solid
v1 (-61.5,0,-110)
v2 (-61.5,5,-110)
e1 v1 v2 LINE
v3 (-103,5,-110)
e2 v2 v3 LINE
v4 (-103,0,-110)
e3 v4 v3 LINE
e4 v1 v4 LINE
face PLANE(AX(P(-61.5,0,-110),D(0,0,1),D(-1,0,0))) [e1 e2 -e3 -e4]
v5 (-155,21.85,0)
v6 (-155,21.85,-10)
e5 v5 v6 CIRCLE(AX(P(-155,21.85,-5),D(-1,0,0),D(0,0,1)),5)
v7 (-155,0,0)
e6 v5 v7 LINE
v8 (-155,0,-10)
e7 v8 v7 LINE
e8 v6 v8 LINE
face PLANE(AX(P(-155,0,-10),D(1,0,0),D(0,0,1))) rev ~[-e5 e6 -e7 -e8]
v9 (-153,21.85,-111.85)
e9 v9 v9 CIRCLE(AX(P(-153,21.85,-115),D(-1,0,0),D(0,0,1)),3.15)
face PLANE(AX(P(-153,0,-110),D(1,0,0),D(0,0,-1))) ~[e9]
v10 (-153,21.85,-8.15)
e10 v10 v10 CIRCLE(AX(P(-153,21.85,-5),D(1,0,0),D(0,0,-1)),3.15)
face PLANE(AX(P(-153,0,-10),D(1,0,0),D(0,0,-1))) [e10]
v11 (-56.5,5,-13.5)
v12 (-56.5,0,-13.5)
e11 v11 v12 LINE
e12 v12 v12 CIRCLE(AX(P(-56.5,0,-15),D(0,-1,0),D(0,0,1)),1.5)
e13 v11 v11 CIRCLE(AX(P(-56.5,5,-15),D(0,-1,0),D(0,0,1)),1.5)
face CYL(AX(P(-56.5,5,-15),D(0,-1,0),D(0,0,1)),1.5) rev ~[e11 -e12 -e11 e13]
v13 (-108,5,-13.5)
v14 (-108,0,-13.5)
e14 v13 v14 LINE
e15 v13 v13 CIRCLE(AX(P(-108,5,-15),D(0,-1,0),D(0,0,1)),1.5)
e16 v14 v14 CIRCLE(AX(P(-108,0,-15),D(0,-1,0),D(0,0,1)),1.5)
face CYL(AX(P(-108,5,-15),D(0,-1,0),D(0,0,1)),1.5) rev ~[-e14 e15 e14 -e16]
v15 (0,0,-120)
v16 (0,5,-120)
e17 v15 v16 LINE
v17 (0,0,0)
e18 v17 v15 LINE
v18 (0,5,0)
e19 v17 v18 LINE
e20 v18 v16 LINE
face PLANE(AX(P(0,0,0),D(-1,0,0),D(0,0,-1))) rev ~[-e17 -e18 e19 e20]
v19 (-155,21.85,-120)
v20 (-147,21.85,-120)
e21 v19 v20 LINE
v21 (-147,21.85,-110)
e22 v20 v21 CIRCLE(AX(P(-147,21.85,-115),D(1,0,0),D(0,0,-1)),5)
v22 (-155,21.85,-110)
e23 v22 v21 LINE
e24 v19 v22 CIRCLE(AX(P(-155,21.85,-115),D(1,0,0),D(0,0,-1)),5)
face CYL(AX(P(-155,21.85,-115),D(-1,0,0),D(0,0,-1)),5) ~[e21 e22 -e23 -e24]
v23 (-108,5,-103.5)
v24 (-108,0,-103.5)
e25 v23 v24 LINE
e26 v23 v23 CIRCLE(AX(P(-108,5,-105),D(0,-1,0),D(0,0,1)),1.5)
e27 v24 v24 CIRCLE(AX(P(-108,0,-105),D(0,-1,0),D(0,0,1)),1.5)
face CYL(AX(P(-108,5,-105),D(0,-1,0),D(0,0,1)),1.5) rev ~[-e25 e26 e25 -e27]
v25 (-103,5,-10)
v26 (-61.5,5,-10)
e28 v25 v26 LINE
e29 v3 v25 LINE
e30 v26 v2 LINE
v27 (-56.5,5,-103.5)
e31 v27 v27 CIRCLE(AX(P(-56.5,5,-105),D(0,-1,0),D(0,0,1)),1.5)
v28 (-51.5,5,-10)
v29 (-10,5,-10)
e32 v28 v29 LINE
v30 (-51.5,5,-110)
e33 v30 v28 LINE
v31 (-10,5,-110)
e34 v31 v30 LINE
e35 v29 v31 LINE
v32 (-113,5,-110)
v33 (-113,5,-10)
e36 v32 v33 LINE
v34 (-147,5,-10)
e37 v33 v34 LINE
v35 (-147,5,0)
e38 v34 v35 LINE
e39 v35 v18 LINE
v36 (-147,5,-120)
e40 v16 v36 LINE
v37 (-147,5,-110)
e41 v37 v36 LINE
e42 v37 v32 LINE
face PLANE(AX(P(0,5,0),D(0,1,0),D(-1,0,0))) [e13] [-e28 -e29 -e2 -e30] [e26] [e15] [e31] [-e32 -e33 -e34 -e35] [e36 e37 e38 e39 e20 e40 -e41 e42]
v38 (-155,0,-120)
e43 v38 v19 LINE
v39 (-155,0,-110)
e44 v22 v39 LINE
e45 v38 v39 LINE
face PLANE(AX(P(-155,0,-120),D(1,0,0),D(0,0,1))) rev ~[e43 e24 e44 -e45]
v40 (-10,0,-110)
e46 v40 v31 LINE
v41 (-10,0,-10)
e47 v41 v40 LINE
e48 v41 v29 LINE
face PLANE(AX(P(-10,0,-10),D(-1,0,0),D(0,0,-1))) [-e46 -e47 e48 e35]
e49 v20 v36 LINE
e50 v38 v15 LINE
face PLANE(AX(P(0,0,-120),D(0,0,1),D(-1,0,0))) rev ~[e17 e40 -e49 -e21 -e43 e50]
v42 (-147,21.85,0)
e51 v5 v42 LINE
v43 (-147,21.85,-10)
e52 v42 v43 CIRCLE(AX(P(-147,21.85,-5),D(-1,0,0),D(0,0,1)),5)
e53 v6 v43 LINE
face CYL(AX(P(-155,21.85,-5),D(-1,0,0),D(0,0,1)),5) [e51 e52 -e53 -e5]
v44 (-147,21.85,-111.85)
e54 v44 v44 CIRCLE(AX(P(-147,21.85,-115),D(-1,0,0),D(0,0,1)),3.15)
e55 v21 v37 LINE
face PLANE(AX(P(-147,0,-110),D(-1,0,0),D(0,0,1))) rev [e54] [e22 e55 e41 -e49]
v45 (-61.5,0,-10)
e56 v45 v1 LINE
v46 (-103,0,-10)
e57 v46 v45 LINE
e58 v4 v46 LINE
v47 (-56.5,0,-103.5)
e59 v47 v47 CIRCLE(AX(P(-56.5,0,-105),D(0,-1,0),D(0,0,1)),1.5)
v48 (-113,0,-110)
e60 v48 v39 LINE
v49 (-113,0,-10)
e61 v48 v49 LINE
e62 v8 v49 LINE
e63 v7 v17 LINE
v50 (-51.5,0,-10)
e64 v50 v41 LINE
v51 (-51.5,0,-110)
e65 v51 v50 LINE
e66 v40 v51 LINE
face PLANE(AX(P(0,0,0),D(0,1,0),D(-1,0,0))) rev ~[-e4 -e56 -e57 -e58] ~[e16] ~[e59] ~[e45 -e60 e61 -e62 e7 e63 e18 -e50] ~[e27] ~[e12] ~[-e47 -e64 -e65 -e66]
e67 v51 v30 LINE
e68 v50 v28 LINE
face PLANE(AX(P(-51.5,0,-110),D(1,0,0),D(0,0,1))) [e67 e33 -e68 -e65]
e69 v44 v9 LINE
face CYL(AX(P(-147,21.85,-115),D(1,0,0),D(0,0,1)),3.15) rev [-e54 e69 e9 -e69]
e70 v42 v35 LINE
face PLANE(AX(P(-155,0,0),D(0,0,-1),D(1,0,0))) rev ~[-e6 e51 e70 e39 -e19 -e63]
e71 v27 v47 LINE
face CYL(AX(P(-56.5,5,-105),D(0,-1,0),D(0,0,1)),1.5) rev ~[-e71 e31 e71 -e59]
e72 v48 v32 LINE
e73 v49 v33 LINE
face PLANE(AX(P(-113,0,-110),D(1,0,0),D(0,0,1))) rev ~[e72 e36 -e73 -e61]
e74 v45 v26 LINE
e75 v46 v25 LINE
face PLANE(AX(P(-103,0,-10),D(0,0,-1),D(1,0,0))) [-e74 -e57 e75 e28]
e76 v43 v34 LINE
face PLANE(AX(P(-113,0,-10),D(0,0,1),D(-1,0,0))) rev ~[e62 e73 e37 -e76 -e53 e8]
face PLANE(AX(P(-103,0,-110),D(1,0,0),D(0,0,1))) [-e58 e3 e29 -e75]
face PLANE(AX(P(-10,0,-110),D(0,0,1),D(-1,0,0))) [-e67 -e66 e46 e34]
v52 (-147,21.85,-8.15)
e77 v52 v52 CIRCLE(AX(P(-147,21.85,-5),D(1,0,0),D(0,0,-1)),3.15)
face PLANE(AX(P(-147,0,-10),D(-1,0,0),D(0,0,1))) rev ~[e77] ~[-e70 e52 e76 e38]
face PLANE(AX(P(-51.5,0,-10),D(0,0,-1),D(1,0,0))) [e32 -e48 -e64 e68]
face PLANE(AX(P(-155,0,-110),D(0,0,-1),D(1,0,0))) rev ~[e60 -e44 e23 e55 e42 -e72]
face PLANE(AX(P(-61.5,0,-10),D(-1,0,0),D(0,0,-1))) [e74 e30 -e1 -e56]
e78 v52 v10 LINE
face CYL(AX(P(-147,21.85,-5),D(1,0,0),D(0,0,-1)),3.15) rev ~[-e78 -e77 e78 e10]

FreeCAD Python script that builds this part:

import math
import FreeCAD as App
import Part
import Sketcher

V = App.Vector


def add_polygon(sketch, points):
    """Adds a closed chain of lines whose ends are joined by coincident constraints."""
    first, n = sketch.GeometryCount, len(points)
    for a, b in zip(points, points[1:] + points[:1]):
        sketch.addGeometry(Part.LineSegment(App.Vector(*a, 0), App.Vector(*b, 0)), False)
    for i in range(n):
        sketch.addConstraint(Sketcher.Constraint("Coincident", first + i, 2, first + (i + 1) % n, 1))

doc = App.newDocument("Part")
body = doc.addObject("PartDesign::Body", "Body")

# Sketch on XZ plane
sketch1 = body.newObject("Sketcher::SketchObject", "Sketch")
sketch1.AttachmentSupport = (doc.getObject("XZ_Plane"), [""])
sketch1.MapMode = "FlatFace"
add_polygon(sketch1, [(-155, 0), (0, 0), (0, -120), (-155, -120), (-155, -110), (-113, -110), (-113, -10), (-155, -10)])  # lines 0-7
add_polygon(sketch1, [(-10, -10), (-52, -10), (-52, -110), (-10, -110)])  # lines 8-11
add_polygon(sketch1, [(-62, -10), (-103, -10), (-103, -110), (-62, -110)])  # lines 12-15
sketch1.addConstraint([
    Sketcher.Constraint("Horizontal", 0),
    Sketcher.Constraint("Vertical", 1),
    Sketcher.Constraint("Horizontal", 2),
    Sketcher.Constraint("Vertical", 3),
    Sketcher.Constraint("Horizontal", 4),
    Sketcher.Constraint("Vertical", 5),
    Sketcher.Constraint("Horizontal", 6),
    Sketcher.Constraint("Vertical", 7),
    Sketcher.Constraint("Horizontal", 8),
    Sketcher.Constraint("Vertical", 9),
    Sketcher.Constraint("Horizontal", 10),
    Sketcher.Constraint("Vertical", 11),
    Sketcher.Constraint("Horizontal", 12),
    Sketcher.Constraint("Vertical", 13),
    Sketcher.Constraint("Horizontal", 14),
    Sketcher.Constraint("Vertical", 15),
    Sketcher.Constraint("Coincident", 0, 2, -1, 1),
    Sketcher.Constraint("Horizontal", 6, 2, 8, 2),
    Sketcher.Constraint("Horizontal", 4, 2, 9, 2),
    Sketcher.Constraint("Horizontal", 11, 2, 12, 2),
    Sketcher.Constraint("Horizontal", 10, 2, 13, 2),
    Sketcher.Constraint("Vertical", 3, 2, 6, 2),
    Sketcher.Constraint("Equal", 10, 12),
    Sketcher.Constraint("Equal", 3, 7),
    Sketcher.Constraint("DistanceX", 0, 1, 0, 2, 155.0),
    Sketcher.Constraint("DistanceY", 1, 2, 1, 1, 120.0),
    Sketcher.Constraint("DistanceY", 3, 1, 3, 2, 10.0),
    Sketcher.Constraint("DistanceX", 8, 2, 8, 1, 41.5),
    Sketcher.Constraint("DistanceX", 10, 2, -1, 1, 10.0),
    Sketcher.Constraint("DistanceX", 5, 2, 12, 2, 10.0),
    Sketcher.Constraint("DistanceX", 14, 2, 9, 2, 10.0),
])
pad1 = body.newObject("PartDesign::Pad", "Pad")
pad1.Profile = sketch1
pad1.Length = 5
pad1.Reversed = True

# Sketch on YZ plane
sketch2 = body.newObject("Sketcher::SketchObject", "Sketch001")
sketch2.AttachmentSupport = (doc.getObject("YZ_Plane"), [""])
sketch2.MapMode = "FlatFace"
sketch2.AttachmentOffset = App.Placement(V(0, 0, -155), App.Rotation())
sketch2.addGeometry([
    Part.LineSegment(V(0, -10, 0), V(0, 0, 0)),
    Part.LineSegment(V(0, 0, 0), V(22, 0, 0)),
    Part.ArcOfCircle(Part.Circle(V(22, -5, 0), V(0, 0, 1), 5), math.radians(-90), math.radians(90)),
    Part.LineSegment(V(22, -10, 0), V(0, -10, 0)),
], False)
sketch2.addConstraint([
    Sketcher.Constraint("Coincident", 0, 2, 1, 1),
    Sketcher.Constraint("Tangent", 1, 2, 2, 2),
    Sketcher.Constraint("Tangent", 2, 1, 3, 1),
    Sketcher.Constraint("Coincident", 3, 2, 0, 1),
    Sketcher.Constraint("Vertical", 0),
    Sketcher.Constraint("Horizontal", 1),
    Sketcher.Constraint("Horizontal", 3),
    Sketcher.Constraint("Coincident", 0, 2, -1, 1),
    Sketcher.Constraint("Radius", 2, 5.0),
    Sketcher.Constraint("DistanceX", 1, 1, 1, 2, 21.85),
])
pad2 = body.newObject("PartDesign::Pad", "Pad001")
pad2.Profile = sketch2
pad2.Length = 8

# Sketch on YZ plane
sketch3 = body.newObject("Sketcher::SketchObject", "Sketch002")
sketch3.AttachmentSupport = (doc.getObject("YZ_Plane"), [""])
sketch3.MapMode = "FlatFace"
sketch3.AttachmentOffset = App.Placement(V(0, 0, -147), App.Rotation())
sketch3.addGeometry(Part.Circle(V(21.9, -5, 0), V(0, 0, 1), 3.1), False)
sketch3.addConstraint([
    Sketcher.Constraint("Diameter", 0, 6.3),
    Sketcher.Constraint("DistanceY", 0, 3, -1, 1, 5.0),
    Sketcher.Constraint("DistanceX", -1, 1, 0, 3, 21.85),
])
pocket1 = body.newObject("PartDesign::Pocket", "Pocket")
pocket1.Profile = sketch3
pocket1.Length = 6
doc.recompute()

datumplane = body.newObject("PartDesign::Plane", "DatumPlane")
datumplane.AttachmentSupport = (doc.getObject("XY_Plane"), [""])
datumplane.MapMode = "FlatFace"
datumplane.AttachmentOffset = App.Placement(V(0, 0, -60), App.Rotation())
mirrored = body.newObject("PartDesign::Mirrored", "Mirrored")
mirrored.Originals = [pad2, pocket1]
mirrored.MirrorPlane = (datumplane, [""])
body.Tip = mirrored

# Sketch on XZ plane
sketch4 = body.newObject("Sketcher::SketchObject", "Sketch003")
sketch4.AttachmentSupport = (doc.getObject("XZ_Plane"), [""])
sketch4.MapMode = "FlatFace"
sketch4.AttachmentOffset = App.Placement(V(0, 0, -5), App.Rotation())
sketch4.addGeometry([
    Part.Circle(V(-108, -15, 0), V(0, 0, 1), 1.5),
    Part.Circle(V(-56.5, -15, 0), V(0, 0, 1), 1.5),
    Part.Circle(V(-108, -105, 0), V(0, 0, 1), 1.5),
    Part.Circle(V(-56.5, -105, 0), V(0, 0, 1), 1.5),
], False)
sketch4.addConstraint([
    Sketcher.Constraint("Equal", 0, 1),
    Sketcher.Constraint("Equal", 1, 2),
    Sketcher.Constraint("Equal", 2, 3),
    Sketcher.Constraint("Horizontal", 0, 3, 1, 3),
    Sketcher.Constraint("Horizontal", 2, 3, 3, 3),
    Sketcher.Constraint("Vertical", 0, 3, 2, 3),
    Sketcher.Constraint("Vertical", 1, 3, 3, 3),
    Sketcher.Constraint("Diameter", 0, 3.0),
    Sketcher.Constraint("DistanceX", 0, 3, -1, 1, 108.0),
    Sketcher.Constraint("DistanceY", 0, 3, -1, 1, 15.0),
    Sketcher.Constraint("DistanceY", 2, 3, -1, 1, 105.0),
    Sketcher.Constraint("DistanceX", 1, 3, -1, 1, 56.5),
])
doc.recompute()
hole = body.newObject("PartDesign::Hole", "Hole")
hole.Profile = sketch4
hole.ThreadType = "None"
hole.Diameter = 3
hole.DepthType = "ThroughAll"
hole.Reversed = True

doc.recompute()
